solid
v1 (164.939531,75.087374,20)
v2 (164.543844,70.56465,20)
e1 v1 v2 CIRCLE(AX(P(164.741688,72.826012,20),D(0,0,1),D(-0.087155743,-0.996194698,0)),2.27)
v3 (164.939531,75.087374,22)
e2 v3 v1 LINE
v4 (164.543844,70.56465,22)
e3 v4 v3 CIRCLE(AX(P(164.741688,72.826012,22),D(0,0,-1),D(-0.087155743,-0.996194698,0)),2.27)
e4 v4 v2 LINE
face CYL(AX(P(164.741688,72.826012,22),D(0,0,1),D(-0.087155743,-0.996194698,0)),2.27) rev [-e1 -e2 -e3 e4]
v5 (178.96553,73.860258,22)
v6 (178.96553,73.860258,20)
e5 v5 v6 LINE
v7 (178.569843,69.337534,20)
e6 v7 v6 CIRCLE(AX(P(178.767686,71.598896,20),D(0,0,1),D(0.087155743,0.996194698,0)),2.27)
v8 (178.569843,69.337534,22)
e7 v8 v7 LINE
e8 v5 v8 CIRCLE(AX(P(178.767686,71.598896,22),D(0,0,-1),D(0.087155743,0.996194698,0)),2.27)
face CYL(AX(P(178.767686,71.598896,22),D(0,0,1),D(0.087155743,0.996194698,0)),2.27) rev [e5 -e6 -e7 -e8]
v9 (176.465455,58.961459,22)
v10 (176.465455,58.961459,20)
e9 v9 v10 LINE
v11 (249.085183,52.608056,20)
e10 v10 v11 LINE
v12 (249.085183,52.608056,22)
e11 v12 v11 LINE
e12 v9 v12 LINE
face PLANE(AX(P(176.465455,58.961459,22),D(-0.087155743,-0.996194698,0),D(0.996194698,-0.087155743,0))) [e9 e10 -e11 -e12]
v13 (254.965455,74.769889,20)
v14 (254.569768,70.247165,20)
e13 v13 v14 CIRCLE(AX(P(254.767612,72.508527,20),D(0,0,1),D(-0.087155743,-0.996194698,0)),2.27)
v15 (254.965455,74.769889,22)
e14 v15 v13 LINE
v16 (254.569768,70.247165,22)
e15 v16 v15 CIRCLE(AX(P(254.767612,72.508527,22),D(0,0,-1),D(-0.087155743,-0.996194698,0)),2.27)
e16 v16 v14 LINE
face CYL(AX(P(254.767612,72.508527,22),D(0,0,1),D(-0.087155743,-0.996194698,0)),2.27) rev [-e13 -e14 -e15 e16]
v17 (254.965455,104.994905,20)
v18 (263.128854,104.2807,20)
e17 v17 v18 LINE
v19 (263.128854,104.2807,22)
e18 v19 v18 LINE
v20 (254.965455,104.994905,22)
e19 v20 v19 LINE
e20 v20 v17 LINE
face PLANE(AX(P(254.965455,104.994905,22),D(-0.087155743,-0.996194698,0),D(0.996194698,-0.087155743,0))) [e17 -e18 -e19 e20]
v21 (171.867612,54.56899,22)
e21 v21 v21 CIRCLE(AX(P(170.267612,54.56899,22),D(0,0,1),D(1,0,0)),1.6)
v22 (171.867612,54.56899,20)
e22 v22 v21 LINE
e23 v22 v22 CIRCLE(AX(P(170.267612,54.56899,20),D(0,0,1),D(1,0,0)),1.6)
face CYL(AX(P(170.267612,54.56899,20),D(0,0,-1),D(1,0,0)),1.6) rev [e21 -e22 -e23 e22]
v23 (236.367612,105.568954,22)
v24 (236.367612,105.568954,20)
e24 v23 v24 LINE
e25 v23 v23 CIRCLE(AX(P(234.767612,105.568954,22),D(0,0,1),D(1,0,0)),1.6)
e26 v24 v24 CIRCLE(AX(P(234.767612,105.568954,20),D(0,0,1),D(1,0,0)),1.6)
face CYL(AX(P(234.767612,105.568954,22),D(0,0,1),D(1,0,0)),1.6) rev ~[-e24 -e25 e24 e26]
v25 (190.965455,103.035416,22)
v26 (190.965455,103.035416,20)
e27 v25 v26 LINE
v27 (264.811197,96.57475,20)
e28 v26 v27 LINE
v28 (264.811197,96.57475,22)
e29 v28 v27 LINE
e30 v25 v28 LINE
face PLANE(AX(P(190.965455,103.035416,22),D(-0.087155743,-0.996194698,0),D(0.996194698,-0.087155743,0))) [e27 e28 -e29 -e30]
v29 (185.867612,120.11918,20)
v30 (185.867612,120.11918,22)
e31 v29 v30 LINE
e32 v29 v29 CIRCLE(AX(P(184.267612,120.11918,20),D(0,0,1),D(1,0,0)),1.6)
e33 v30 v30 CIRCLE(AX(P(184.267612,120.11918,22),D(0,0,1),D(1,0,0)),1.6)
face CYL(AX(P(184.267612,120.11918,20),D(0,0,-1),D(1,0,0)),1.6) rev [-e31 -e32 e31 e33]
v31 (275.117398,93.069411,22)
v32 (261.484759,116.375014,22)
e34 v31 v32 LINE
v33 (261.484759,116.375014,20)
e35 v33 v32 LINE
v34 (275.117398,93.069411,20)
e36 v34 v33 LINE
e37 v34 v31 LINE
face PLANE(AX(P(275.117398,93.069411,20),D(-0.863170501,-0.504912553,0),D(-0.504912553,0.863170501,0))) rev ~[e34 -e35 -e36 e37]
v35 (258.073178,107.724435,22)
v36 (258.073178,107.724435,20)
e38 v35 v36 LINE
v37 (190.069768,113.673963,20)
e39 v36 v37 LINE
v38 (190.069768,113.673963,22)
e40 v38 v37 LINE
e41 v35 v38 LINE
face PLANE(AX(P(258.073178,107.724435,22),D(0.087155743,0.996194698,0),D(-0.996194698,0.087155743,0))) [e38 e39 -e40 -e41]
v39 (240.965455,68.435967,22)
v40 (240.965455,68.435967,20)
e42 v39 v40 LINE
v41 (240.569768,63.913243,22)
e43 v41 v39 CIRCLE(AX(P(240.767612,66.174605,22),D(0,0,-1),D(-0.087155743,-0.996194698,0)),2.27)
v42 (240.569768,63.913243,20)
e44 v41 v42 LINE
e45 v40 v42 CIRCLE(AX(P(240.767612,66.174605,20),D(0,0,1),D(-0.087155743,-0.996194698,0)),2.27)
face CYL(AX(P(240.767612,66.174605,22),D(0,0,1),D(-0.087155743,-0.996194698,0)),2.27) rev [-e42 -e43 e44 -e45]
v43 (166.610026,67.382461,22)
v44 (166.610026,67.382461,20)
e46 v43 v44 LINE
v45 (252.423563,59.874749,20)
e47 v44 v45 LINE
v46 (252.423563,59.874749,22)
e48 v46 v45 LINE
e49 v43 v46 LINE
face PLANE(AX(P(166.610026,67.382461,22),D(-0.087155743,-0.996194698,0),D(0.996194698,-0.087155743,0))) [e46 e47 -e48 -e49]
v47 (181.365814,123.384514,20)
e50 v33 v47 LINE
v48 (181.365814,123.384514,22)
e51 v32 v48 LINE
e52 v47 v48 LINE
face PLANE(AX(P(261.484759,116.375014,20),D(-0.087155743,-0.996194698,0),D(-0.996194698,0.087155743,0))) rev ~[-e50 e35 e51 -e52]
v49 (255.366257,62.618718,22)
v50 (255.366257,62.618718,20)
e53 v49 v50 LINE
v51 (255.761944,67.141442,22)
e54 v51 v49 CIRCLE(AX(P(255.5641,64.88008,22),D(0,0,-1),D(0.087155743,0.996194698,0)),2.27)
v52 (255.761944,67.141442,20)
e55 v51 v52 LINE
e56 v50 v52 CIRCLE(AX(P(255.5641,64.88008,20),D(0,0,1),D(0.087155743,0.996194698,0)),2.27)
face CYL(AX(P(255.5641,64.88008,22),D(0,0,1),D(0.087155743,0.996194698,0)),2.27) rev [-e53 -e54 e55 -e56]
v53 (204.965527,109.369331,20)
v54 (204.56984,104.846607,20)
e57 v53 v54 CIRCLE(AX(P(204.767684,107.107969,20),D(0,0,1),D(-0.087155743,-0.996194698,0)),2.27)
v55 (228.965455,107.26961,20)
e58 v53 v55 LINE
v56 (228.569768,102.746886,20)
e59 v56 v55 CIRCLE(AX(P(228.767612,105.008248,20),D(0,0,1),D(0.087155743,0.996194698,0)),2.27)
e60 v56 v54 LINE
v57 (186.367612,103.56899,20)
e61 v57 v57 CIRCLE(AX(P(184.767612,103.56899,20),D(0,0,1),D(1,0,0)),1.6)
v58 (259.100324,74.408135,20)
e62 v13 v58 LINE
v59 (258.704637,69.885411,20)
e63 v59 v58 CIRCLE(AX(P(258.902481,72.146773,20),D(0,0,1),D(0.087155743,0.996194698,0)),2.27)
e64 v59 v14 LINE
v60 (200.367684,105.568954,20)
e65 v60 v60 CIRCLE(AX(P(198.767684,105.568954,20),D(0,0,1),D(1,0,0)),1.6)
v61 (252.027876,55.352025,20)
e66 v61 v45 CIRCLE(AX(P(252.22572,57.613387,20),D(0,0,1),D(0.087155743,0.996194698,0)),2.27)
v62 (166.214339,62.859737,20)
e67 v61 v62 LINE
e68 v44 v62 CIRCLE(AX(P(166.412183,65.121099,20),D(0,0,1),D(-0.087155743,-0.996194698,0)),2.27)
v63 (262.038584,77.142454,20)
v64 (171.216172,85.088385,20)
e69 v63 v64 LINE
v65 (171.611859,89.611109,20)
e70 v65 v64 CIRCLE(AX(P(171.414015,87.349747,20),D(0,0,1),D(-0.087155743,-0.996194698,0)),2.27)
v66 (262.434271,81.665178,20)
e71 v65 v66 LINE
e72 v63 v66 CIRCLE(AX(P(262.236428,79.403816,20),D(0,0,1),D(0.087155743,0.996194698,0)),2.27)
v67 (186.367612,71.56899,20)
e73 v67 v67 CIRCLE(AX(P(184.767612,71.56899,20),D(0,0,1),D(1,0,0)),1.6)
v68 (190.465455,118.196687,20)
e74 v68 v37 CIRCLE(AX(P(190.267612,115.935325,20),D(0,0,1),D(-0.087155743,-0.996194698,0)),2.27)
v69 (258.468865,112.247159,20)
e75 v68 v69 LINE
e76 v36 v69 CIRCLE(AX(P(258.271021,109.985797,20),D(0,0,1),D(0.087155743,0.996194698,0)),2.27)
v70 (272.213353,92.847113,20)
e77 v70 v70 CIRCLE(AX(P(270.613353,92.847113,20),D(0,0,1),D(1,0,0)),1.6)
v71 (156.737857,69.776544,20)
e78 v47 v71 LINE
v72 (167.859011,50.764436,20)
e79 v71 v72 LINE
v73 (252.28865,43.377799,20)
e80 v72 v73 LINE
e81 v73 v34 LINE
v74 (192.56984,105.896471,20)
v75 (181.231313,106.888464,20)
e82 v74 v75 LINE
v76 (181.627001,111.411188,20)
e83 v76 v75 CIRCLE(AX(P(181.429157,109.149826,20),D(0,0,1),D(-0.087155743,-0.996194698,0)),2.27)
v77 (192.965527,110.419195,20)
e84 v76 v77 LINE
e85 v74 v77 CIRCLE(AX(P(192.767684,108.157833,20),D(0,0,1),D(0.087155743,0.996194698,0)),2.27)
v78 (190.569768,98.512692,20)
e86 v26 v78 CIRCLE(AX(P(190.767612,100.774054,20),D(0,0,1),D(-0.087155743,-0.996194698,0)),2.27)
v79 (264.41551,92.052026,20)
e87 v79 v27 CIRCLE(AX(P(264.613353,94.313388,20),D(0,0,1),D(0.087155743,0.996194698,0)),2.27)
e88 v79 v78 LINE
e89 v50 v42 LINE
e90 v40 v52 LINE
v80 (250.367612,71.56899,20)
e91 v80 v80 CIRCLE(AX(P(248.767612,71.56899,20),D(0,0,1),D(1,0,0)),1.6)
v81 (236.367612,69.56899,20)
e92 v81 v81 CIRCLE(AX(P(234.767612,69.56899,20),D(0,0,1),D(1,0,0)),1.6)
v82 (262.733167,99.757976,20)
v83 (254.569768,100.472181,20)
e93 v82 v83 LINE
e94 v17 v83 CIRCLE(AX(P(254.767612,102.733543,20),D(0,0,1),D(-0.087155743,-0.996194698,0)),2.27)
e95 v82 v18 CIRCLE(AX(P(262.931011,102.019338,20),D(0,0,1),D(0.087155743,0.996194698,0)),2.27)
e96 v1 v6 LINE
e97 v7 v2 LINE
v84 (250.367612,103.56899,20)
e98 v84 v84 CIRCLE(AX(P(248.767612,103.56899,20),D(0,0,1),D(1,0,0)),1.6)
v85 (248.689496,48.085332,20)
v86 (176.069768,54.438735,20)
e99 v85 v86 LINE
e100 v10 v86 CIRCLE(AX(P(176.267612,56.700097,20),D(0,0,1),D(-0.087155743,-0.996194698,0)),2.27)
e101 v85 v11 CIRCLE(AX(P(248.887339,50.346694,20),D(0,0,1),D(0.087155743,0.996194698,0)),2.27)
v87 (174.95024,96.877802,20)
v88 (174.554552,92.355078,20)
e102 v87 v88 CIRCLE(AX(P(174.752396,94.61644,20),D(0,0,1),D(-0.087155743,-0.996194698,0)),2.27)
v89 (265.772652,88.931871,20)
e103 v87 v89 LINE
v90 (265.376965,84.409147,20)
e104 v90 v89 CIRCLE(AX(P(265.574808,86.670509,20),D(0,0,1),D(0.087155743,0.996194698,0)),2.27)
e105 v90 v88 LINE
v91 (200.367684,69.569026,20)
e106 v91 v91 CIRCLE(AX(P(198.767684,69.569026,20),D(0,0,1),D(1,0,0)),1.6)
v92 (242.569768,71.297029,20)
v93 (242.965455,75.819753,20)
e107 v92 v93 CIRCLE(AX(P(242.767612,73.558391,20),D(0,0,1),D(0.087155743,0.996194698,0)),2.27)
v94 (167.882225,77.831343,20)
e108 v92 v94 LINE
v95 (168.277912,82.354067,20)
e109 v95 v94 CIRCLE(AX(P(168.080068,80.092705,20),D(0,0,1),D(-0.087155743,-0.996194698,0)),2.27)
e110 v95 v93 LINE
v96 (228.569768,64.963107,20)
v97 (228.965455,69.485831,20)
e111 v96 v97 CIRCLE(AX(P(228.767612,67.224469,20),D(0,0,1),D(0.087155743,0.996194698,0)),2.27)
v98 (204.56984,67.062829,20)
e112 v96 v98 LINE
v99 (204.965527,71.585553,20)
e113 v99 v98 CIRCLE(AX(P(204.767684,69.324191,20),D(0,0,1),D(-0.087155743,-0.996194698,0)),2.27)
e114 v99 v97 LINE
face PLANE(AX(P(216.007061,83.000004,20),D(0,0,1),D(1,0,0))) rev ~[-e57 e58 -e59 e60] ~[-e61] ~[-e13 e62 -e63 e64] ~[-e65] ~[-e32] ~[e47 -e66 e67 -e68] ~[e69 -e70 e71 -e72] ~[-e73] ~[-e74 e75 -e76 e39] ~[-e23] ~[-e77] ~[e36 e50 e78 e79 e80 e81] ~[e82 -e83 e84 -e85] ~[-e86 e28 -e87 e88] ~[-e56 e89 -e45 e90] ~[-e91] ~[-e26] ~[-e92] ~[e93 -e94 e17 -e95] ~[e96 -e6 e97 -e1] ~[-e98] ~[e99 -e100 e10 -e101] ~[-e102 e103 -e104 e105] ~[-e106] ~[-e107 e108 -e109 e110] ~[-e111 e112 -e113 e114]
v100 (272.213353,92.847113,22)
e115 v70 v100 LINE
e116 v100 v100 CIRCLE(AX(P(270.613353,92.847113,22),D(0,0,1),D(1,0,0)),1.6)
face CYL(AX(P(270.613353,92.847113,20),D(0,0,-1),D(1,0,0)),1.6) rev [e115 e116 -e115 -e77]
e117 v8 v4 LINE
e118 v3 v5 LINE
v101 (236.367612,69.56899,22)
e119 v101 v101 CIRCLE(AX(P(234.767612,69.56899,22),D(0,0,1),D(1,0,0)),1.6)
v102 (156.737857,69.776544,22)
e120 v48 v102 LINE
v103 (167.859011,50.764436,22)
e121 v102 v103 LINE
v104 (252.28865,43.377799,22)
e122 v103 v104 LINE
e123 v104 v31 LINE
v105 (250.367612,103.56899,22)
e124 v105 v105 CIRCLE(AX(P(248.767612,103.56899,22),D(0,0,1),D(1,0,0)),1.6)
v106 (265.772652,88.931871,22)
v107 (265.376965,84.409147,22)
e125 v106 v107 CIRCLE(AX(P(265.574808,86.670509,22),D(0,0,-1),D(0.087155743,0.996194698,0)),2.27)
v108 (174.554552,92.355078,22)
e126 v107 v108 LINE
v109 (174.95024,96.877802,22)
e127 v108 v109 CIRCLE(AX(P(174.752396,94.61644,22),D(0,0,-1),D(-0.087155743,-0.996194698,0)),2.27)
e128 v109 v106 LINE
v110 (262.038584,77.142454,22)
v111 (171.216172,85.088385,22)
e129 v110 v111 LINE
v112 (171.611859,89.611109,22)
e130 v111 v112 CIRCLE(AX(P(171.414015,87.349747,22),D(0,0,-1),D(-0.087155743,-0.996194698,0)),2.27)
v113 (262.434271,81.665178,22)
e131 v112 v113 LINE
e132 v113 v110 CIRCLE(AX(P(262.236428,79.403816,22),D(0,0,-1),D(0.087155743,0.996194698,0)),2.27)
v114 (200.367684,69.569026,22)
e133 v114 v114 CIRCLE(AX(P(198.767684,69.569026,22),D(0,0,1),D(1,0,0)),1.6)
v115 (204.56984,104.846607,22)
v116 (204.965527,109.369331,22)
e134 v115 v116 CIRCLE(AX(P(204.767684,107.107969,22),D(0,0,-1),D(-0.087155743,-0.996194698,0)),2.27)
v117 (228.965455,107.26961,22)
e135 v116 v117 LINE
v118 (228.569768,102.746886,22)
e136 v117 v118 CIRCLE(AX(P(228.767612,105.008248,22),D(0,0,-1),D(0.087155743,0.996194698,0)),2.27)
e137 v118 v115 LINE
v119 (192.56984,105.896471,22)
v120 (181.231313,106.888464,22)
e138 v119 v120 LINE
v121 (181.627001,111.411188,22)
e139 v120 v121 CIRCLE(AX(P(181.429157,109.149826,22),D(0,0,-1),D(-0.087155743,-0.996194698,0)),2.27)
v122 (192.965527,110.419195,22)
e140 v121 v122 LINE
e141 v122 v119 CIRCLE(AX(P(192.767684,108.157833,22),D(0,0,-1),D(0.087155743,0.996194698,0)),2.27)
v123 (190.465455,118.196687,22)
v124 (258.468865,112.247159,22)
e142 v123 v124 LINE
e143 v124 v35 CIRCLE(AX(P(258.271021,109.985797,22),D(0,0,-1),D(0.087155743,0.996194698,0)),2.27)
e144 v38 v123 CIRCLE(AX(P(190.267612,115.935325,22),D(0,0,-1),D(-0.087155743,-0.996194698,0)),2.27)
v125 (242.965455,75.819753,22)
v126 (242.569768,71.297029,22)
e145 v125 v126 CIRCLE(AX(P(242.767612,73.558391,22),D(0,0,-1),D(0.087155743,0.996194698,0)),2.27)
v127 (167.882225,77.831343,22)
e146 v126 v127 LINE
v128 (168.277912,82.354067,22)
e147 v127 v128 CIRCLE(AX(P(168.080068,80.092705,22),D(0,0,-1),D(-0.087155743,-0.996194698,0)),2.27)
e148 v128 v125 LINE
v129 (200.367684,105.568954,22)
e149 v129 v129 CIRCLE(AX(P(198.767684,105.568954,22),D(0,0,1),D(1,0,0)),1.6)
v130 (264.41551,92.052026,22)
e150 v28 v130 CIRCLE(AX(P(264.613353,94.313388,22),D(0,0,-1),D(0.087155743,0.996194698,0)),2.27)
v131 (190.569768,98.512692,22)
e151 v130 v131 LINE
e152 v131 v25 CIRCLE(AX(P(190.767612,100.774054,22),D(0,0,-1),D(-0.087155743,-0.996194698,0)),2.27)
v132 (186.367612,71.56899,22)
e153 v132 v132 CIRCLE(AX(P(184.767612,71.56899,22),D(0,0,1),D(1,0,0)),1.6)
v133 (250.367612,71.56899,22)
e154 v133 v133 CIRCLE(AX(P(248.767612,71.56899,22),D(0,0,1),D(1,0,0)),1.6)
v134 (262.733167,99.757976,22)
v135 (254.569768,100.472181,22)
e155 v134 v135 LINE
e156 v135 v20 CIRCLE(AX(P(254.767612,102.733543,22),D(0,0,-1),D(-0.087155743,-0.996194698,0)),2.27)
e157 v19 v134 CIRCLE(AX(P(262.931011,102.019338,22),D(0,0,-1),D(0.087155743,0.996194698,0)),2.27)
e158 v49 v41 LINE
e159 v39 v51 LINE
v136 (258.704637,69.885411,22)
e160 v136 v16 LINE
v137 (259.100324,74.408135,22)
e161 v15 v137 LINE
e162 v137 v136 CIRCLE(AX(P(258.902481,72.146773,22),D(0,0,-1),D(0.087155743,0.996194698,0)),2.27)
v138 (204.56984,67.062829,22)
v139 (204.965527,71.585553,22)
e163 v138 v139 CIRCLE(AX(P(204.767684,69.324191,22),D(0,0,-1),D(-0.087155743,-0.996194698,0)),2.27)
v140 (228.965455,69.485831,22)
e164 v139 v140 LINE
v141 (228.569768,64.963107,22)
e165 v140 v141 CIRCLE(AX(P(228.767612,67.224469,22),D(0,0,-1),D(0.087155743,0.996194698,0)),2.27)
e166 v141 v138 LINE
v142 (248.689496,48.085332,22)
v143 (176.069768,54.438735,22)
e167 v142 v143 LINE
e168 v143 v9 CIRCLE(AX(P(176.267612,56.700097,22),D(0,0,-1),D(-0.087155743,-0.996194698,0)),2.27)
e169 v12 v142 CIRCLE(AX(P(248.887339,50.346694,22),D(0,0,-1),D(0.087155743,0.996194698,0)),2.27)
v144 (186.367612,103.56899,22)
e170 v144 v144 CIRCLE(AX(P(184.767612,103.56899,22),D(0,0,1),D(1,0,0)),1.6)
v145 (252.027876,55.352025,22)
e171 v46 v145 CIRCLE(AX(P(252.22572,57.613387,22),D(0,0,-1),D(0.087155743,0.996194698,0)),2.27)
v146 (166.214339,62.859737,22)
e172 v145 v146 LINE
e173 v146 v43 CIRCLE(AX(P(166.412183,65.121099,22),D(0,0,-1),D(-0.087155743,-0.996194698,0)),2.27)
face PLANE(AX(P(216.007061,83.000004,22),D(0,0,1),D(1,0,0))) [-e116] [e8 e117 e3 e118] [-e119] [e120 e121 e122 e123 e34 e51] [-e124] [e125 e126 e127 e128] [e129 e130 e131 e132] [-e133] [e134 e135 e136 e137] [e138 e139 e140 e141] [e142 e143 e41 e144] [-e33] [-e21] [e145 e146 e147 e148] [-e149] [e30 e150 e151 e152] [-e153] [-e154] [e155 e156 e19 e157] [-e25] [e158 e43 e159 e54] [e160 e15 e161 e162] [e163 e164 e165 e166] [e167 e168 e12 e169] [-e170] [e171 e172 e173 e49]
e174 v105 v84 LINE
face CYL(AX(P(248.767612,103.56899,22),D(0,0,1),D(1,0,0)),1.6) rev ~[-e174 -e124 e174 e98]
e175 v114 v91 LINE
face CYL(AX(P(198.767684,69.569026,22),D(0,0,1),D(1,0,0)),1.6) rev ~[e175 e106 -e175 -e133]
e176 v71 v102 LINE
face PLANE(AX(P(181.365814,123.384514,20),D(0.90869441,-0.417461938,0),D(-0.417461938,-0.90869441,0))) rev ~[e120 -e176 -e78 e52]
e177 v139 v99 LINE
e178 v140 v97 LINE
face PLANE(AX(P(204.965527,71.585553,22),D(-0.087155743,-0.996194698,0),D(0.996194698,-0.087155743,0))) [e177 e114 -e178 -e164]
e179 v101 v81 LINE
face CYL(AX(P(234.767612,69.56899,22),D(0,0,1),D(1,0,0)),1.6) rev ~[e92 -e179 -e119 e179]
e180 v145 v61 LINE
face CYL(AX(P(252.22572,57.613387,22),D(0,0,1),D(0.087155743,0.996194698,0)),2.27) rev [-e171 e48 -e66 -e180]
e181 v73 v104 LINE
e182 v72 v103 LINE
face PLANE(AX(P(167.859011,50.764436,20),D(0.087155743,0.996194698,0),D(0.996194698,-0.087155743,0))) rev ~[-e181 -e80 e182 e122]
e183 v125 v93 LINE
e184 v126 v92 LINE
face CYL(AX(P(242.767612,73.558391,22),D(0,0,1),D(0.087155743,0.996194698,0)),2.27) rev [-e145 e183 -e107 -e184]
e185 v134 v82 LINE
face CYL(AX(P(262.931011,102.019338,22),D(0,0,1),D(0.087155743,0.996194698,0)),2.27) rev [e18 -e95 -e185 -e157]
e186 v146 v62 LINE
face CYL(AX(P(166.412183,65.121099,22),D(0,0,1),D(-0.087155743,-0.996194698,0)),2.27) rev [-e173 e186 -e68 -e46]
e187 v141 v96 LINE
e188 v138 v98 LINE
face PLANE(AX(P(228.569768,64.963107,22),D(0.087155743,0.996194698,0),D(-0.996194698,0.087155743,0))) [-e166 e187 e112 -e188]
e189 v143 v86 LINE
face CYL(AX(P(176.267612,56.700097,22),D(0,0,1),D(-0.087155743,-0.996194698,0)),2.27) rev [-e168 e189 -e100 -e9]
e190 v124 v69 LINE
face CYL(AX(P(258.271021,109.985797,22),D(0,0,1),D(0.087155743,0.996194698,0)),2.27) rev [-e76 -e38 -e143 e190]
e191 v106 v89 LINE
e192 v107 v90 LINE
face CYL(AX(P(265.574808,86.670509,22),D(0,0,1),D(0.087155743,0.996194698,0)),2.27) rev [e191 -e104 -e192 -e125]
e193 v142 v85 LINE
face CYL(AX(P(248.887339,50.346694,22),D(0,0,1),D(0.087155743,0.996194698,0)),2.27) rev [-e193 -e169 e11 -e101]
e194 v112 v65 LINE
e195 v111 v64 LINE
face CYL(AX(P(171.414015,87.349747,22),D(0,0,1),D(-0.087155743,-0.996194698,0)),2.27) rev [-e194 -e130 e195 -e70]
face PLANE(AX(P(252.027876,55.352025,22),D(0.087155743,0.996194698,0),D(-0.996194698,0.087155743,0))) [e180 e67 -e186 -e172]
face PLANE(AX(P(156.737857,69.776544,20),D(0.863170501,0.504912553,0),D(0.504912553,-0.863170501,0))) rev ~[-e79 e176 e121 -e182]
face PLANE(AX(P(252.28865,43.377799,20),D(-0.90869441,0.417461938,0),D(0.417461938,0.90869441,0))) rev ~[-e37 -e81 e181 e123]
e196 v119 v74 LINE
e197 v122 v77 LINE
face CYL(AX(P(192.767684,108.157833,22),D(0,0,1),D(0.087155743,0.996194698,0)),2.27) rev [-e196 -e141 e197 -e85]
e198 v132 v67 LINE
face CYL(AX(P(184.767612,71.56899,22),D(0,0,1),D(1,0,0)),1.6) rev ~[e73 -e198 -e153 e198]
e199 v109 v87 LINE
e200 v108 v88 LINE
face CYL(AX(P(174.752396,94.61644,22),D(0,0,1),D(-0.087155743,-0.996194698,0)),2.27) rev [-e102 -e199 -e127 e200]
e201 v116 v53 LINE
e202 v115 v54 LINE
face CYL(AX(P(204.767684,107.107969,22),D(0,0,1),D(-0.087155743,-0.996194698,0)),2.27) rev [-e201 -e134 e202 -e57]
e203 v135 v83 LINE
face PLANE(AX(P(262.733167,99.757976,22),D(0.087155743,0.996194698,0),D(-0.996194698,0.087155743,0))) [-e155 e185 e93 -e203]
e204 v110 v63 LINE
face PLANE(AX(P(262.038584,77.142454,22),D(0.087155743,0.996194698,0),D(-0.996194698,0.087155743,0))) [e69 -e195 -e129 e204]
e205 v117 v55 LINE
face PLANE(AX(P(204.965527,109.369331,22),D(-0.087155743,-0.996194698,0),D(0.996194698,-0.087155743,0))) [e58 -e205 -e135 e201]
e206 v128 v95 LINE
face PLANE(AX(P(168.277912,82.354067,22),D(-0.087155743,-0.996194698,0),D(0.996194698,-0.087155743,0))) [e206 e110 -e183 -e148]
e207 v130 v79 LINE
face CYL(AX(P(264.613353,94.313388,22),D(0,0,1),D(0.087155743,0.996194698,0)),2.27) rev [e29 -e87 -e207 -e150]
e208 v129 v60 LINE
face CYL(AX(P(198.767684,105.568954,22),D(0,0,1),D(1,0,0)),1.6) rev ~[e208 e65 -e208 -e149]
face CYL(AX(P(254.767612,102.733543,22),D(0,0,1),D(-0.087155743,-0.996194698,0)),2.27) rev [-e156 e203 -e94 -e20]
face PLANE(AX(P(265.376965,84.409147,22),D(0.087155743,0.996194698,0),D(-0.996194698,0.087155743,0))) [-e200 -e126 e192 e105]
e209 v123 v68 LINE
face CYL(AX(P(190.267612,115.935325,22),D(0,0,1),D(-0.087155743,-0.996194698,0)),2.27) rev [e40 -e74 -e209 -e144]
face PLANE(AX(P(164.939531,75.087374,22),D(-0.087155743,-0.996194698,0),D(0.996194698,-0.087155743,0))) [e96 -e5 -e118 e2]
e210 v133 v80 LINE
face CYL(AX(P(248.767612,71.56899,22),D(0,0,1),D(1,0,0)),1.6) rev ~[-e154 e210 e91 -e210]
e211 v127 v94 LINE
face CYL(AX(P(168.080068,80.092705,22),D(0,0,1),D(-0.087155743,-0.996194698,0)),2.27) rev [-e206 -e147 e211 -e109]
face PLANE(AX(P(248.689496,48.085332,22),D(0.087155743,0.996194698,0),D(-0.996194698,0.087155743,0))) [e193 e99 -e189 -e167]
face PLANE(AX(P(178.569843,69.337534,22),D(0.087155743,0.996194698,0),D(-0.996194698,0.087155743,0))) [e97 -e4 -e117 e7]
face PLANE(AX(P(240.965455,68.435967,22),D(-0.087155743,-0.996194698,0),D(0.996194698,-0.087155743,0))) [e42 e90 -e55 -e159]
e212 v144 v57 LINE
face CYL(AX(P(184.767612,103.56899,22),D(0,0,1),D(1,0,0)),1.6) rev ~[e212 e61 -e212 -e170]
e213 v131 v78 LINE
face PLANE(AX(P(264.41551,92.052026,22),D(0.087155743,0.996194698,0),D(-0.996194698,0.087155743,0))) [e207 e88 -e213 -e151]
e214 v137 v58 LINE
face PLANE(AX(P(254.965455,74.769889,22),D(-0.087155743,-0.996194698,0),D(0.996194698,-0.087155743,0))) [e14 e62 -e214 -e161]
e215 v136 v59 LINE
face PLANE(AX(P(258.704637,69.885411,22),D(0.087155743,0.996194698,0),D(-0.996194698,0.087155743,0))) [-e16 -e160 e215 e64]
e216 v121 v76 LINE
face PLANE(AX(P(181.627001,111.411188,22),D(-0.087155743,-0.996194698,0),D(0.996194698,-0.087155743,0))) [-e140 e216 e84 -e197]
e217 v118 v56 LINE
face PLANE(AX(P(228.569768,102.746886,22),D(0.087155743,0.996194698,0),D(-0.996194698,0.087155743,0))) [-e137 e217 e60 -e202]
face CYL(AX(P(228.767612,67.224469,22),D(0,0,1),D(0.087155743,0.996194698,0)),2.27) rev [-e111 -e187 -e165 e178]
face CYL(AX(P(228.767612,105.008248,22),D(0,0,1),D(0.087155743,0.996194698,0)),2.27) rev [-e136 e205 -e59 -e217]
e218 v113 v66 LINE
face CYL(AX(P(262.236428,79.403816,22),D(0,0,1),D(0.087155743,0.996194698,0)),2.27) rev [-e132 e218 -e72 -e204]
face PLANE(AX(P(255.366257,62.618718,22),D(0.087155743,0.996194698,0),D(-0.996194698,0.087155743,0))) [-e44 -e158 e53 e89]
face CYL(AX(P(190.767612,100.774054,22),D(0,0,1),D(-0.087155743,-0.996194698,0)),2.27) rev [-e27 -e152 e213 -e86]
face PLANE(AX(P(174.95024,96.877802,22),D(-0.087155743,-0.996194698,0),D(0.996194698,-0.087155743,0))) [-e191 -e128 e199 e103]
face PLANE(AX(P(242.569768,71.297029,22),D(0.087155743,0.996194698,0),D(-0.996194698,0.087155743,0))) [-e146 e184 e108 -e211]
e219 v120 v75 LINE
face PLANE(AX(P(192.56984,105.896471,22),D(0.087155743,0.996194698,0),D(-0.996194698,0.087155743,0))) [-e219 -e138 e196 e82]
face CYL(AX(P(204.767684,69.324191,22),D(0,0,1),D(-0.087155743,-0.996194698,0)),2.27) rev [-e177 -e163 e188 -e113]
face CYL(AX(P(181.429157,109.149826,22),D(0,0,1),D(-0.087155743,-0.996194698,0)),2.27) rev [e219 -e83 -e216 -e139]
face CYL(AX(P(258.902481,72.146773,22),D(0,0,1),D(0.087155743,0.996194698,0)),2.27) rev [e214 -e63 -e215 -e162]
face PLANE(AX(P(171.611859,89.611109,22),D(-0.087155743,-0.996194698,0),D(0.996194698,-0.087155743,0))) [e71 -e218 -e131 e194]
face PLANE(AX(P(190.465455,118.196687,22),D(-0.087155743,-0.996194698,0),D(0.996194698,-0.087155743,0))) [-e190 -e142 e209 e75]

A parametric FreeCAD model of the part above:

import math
import FreeCAD as App
import Part
import Sketcher
from FreeCAD import Vector
Q = App.Units.Quantity

doc = App.newDocument("Part")
body = doc.addObject("PartDesign::Body", "Body")

# Sketch on XY plane
sketch1 = doc.addObject("Sketcher::SketchObject", "Sketch")
body.addObject(sketch1)
sketch1.AttachmentSupport = (doc.XY_Plane, [""])
sketch1.MapMode = "FlatFace"
sketch1.AttachmentOffset = App.Placement(Vector(0, 0, 20), App.Rotation())
sketch1.addGeometry(Part.LineSegment(Vector(252.3, 43.4, 0), Vector(275.1, 93.1, 0)), False)
sketch1.addGeometry(Part.LineSegment(Vector(275.1, 93.1, 0), Vector(261.5, 116.4, 0)), False)
sketch1.addGeometry(Part.LineSegment(Vector(261.5, 116.4, 0), Vector(181.4, 123.4, 0)), False)
sketch1.addGeometry(Part.LineSegment(Vector(181.4, 123.4, 0), Vector(156.7, 69.8, 0)), False)
sketch1.addGeometry(Part.LineSegment(Vector(156.7, 69.8, 0), Vector(167.9, 50.8, 0)), False)
sketch1.addGeometry(Part.LineSegment(Vector(167.9, 50.8, 0), Vector(252.3, 43.4, 0)), False)
sketch1.addGeometry(Part.Circle(Vector(170.3, 54.6, 0), Vector(0, 0, 1), 1.6), False)
sketch1.addGeometry(Part.Circle(Vector(184.3, 120.1, 0), Vector(0, 0, 1), 1.6), False)
sketch1.addGeometry(Part.Circle(Vector(270.6, 92.8, 0), Vector(0, 0, 1), 1.6), False)
sketch1.addConstraint(Sketcher.Constraint("Coincident", 0, 2, 1, 1))
sketch1.addConstraint(Sketcher.Constraint("Coincident", 1, 2, 2, 1))
sketch1.addConstraint(Sketcher.Constraint("Coincident", 2, 2, 3, 1))
sketch1.addConstraint(Sketcher.Constraint("Coincident", 3, 2, 4, 1))
sketch1.addConstraint(Sketcher.Constraint("Coincident", 4, 2, 5, 1))
sketch1.addConstraint(Sketcher.Constraint("Coincident", 5, 2, 0, 1))
sketch1.addConstraint(Sketcher.Constraint("Equal", 6, 7))
sketch1.addConstraint(Sketcher.Constraint("Equal", 7, 8))
sketch1.addConstraint(Sketcher.Constraint("Parallel", 0, 3))
sketch1.addConstraint(Sketcher.Constraint("Parallel", 1, 4))
sketch1.addConstraint(Sketcher.Constraint("Parallel", 2, 5))
sketch1.addConstraint(Sketcher.Constraint("Diameter", 6, 3.2))
sketch1.addConstraint(Sketcher.Constraint("Angle", 2, Q("175 deg")))
sketch1.addConstraint(Sketcher.Constraint("Distance", 1, 27.0))
sketch1.addConstraint(Sketcher.Constraint("DistanceX", 6, 3, 7, 3, 14.0))
sketch1.addConstraint(Sketcher.Constraint("Distance", 4, 22.025902))
sketch1.addConstraint(Sketcher.Constraint("DistanceX", -1, 1, 0, 2, 275.117398))
sketch1.addConstraint(Sketcher.Constraint("DistanceY", -1, 1, 5, 2, 43.377799))
sketch1.addConstraint(Sketcher.Constraint("DistanceY", 8, 3, 1, 2, 23.527901))
sketch1.addConstraint(Sketcher.Constraint("DistanceY", 1, 2, 2, 2, 7.009499))
sketch1.addConstraint(Sketcher.Constraint("DistanceX", 4, 2, 6, 3, 2.4086))
sketch1.addConstraint(Sketcher.Constraint("DistanceX", -1, 1, 6, 3, 170.267612))
sketch1.addConstraint(Sketcher.Constraint("DistanceY", -1, 1, 6, 3, 54.56899))
sketch1.addConstraint(Sketcher.Constraint("DistanceY", -1, 1, 7, 3, 120.11918))
sketch1.addConstraint(Sketcher.Constraint("DistanceY", -1, 1, 0, 2, 93.069411))
sketch1.addConstraint(Sketcher.Constraint("DistanceX", -1, 1, 1, 2, 261.484759))
sketch1.addConstraint(Sketcher.Constraint("DistanceX", 7, 3, 8, 3, 86.345741))
pad1 = doc.addObject("PartDesign::Pad", "Pad")
body.addObject(pad1)
pad1.Profile = sketch1
pad1.Length = 2

# Sketch on XY plane
sketch2 = doc.addObject("Sketcher::SketchObject", "Sketch001")
body.addObject(sketch2)
sketch2.AttachmentSupport = (doc.XY_Plane, [""])
sketch2.MapMode = "FlatFace"
sketch2.AttachmentOffset = App.Placement(Vector(0, 0, 22), App.Rotation())
sketch2.addGeometry(Part.Circle(Vector(184.8, 103.6, 0), Vector(0, 0, 1), 1.6), False)
sketch2.addGeometry(Part.Circle(Vector(248.8, 103.6, 0), Vector(0, 0, 1), 1.6), False)
sketch2.addGeometry(Part.Circle(Vector(184.8, 71.6, 0), Vector(0, 0, 1), 1.6), False)
sketch2.addGeometry(Part.Circle(Vector(248.8, 71.6, 0), Vector(0, 0, 1), 1.6), False)
sketch2.addConstraint(Sketcher.Constraint("Equal", 0, 1))
sketch2.addConstraint(Sketcher.Constraint("Equal", 1, 2))
sketch2.addConstraint(Sketcher.Constraint("Equal", 2, 3))
sketch2.addConstraint(Sketcher.Constraint("Horizontal", 0, 3, 1, 3))
sketch2.addConstraint(Sketcher.Constraint("Horizontal", 2, 3, 3, 3))
sketch2.addConstraint(Sketcher.Constraint("Vertical", 0, 3, 2, 3))
sketch2.addConstraint(Sketcher.Constraint("Vertical", 1, 3, 3, 3))
sketch2.addConstraint(Sketcher.Constraint("Diameter", 0, 3.2))
sketch2.addConstraint(Sketcher.Constraint("DistanceX", 0, 3, 1, 3, 64.0))
sketch2.addConstraint(Sketcher.Constraint("DistanceY", 2, 3, 0, 3, 32.0))
sketch2.addConstraint(Sketcher.Constraint("DistanceX", -1, 1, 0, 3, 184.767612))
sketch2.addConstraint(Sketcher.Constraint("DistanceY", -1, 1, 0, 3, 103.56899))
pocket1 = doc.addObject("PartDesign::Pocket", "Pocket")
body.addObject(pocket1)
pocket1.Profile = sketch2
pocket1.Length = 10

# Sketch on XY plane
sketch3 = doc.addObject("Sketcher::SketchObject", "Sketch002")
body.addObject(sketch3)
sketch3.AttachmentSupport = (doc.XY_Plane, [""])
sketch3.MapMode = "FlatFace"
sketch3.AttachmentOffset = App.Placement(Vector(0, 0, 22), App.Rotation())
sketch3.addGeometry(Part.Circle(Vector(198.8, 105.6, 0), Vector(0, 0, 1), 1.6), False)
sketch3.addGeometry(Part.Circle(Vector(234.8, 105.6, 0), Vector(0, 0, 1), 1.6), False)
sketch3.addGeometry(Part.Circle(Vector(198.8, 69.6, 0), Vector(0, 0, 1), 1.6), False)
sketch3.addGeometry(Part.Circle(Vector(234.8, 69.6, 0), Vector(0, 0, 1), 1.6), False)
sketch3.addConstraint(Sketcher.Constraint("Equal", 0, 1))
sketch3.addConstraint(Sketcher.Constraint("Equal", 1, 2))
sketch3.addConstraint(Sketcher.Constraint("Equal", 2, 3))
sketch3.addConstraint(Sketcher.Constraint("Horizontal", 0, 3, 1, 3))
sketch3.addConstraint(Sketcher.Constraint("Vertical", 0, 3, 2, 3))
sketch3.addConstraint(Sketcher.Constraint("Vertical", 1, 3, 3, 3))
sketch3.addConstraint(Sketcher.Constraint("Diameter", 0, 3.2))
sketch3.addConstraint(Sketcher.Constraint("DistanceX", -1, 1, 1, 3, 234.767612))
sketch3.addConstraint(Sketcher.Constraint("DistanceY", -1, 1, 3, 3, 69.56899))
sketch3.addConstraint(Sketcher.Constraint("DistanceX", -1, 1, 0, 3, 198.767684))
sketch3.addConstraint(Sketcher.Constraint("DistanceY", -1, 1, 0, 3, 105.568954))
sketch3.addConstraint(Sketcher.Constraint("DistanceY", -1, 1, 2, 3, 69.569026))
pocket2 = doc.addObject("PartDesign::Pocket", "Pocket001")
body.addObject(pocket2)
pocket2.Profile = sketch3
pocket2.Length = 10

# Sketch on XY plane
sketch4 = doc.addObject("Sketcher::SketchObject", "Sketch003")
body.addObject(sketch4)
sketch4.AttachmentSupport = (doc.XY_Plane, [""])
sketch4.MapMode = "FlatFace"
sketch4.AttachmentOffset = App.Placement(Vector(0, 0, 22), App.Rotation())
sketch4.addGeometry(Part.LineSegment(Vector(258.5, 112.2, 0), Vector(190.5, 118.2, 0)), False)
sketch4.addGeometry(Part.ArcOfCircle(Part.Circle(Vector(190.3, 115.9, 0), Vector(0, 0, 1), 2.3), math.radians(85), math.radians(265)), False)
sketch4.addGeometry(Part.LineSegment(Vector(190.1, 113.7, 0), Vector(258.1, 107.7, 0)), False)
sketch4.addGeometry(Part.ArcOfCircle(Part.Circle(Vector(258.3, 110, 0), Vector(0, 0, 1), 2.3), math.radians(-95), math.radians(85)), False)
sketch4.addGeometry(Part.LineSegment(Vector(193, 110.4, 0), Vector(181.6, 111.4, 0)), False)
sketch4.addGeometry(Part.ArcOfCircle(Part.Circle(Vector(181.4, 109.1, 0), Vector(0, 0, 1), 2.3), math.radians(85), math.radians(265)), False)
sketch4.addGeometry(Part.LineSegment(Vector(181.2, 106.9, 0), Vector(192.6, 105.9, 0)), False)
sketch4.addGeometry(Part.ArcOfCircle(Part.Circle(Vector(192.8, 108.2, 0), Vector(0, 0, 1), 2.3), math.radians(-95), math.radians(85)), False)
sketch4.addGeometry(Part.LineSegment(Vector(229, 107.3, 0), Vector(205, 109.4, 0)), False)
sketch4.addGeometry(Part.ArcOfCircle(Part.Circle(Vector(204.8, 107.1, 0), Vector(0, 0, 1), 2.3), math.radians(85), math.radians(265)), False)
sketch4.addGeometry(Part.LineSegment(Vector(204.6, 104.8, 0), Vector(228.6, 102.7, 0)), False)
sketch4.addGeometry(Part.ArcOfCircle(Part.Circle(Vector(228.8, 105, 0), Vector(0, 0, 1), 2.3), math.radians(-95), math.radians(85)), False)
sketch4.addGeometry(Part.LineSegment(Vector(263.1, 104.3, 0), Vector(255, 105, 0)), False)
sketch4.addGeometry(Part.ArcOfCircle(Part.Circle(Vector(254.8, 102.7, 0), Vector(0, 0, 1), 2.3), math.radians(85), math.radians(265)), False)
sketch4.addGeometry(Part.LineSegment(Vector(254.6, 100.5, 0), Vector(262.7, 99.8, 0)), False)
sketch4.addGeometry(Part.ArcOfCircle(Part.Circle(Vector(262.9, 102, 0), Vector(0, 0, 1), 2.3), math.radians(-95), math.radians(85)), False)
sketch4.addGeometry(Part.LineSegment(Vector(264.8, 96.6, 0), Vector(191, 103, 0)), False)
sketch4.addGeometry(Part.ArcOfCircle(Part.Circle(Vector(190.8, 100.8, 0), Vector(0, 0, 1), 2.3), math.radians(85), math.radians(265)), False)
sketch4.addGeometry(Part.LineSegment(Vector(190.6, 98.5, 0), Vector(264.4, 92.1, 0)), False)
sketch4.addGeometry(Part.ArcOfCircle(Part.Circle(Vector(264.6, 94.3, 0), Vector(0, 0, 1), 2.3), math.radians(-95), math.radians(85)), False)
sketch4.addGeometry(Part.LineSegment(Vector(265.8, 88.9, 0), Vector(175, 96.9, 0)), False)
sketch4.addGeometry(Part.ArcOfCircle(Part.Circle(Vector(174.8, 94.6, 0), Vector(0, 0, 1), 2.3), math.radians(85), math.radians(265)), False)
sketch4.addGeometry(Part.LineSegment(Vector(174.6, 92.4, 0), Vector(265.4, 84.4, 0)), False)
sketch4.addGeometry(Part.ArcOfCircle(Part.Circle(Vector(265.6, 86.7, 0), Vector(0, 0, 1), 2.3), math.radians(-95), math.radians(85)), False)
sketch4.addGeometry(Part.LineSegment(Vector(262.4, 81.7, 0), Vector(171.6, 89.6, 0)), False)
sketch4.addGeometry(Part.ArcOfCircle(Part.Circle(Vector(171.4, 87.3, 0), Vector(0, 0, 1), 2.3), math.radians(85), math.radians(265)), False)
sketch4.addGeometry(Part.LineSegment(Vector(171.2, 85.1, 0), Vector(262, 77.1, 0)), False)
sketch4.addGeometry(Part.ArcOfCircle(Part.Circle(Vector(262.2, 79.4, 0), Vector(0, 0, 1), 2.3), math.radians(-95), math.radians(85)), False)
sketch4.addGeometry(Part.LineSegment(Vector(243, 75.8, 0), Vector(168.3, 82.4, 0)), False)
sketch4.addGeometry(Part.ArcOfCircle(Part.Circle(Vector(168.1, 80.1, 0), Vector(0, 0, 1), 2.3), math.radians(85), math.radians(265)), False)
sketch4.addGeometry(Part.LineSegment(Vector(167.9, 77.8, 0), Vector(242.6, 71.3, 0)), False)
sketch4.addGeometry(Part.ArcOfCircle(Part.Circle(Vector(242.8, 73.6, 0), Vector(0, 0, 1), 2.3), math.radians(-95), math.radians(85)), False)
sketch4.addGeometry(Part.LineSegment(Vector(259.1, 74.4, 0), Vector(255, 74.8, 0)), False)
sketch4.addGeometry(Part.ArcOfCircle(Part.Circle(Vector(254.8, 72.5, 0), Vector(0, 0, 1), 2.3), math.radians(85), math.radians(265)), False)
sketch4.addGeometry(Part.LineSegment(Vector(254.6, 70.2, 0), Vector(258.7, 69.9, 0)), False)
sketch4.addGeometry(Part.ArcOfCircle(Part.Circle(Vector(258.9, 72.1, 0), Vector(0, 0, 1), 2.3), math.radians(-95), math.radians(85)), False)
sketch4.addGeometry(Part.LineSegment(Vector(179, 73.9, 0), Vector(164.9, 75.1, 0)), False)
sketch4.addGeometry(Part.ArcOfCircle(Part.Circle(Vector(164.7, 72.8, 0), Vector(0, 0, 1), 2.3), math.radians(85), math.radians(265)), False)
sketch4.addGeometry(Part.LineSegment(Vector(164.5, 70.6, 0), Vector(178.6, 69.3, 0)), False)
sketch4.addGeometry(Part.ArcOfCircle(Part.Circle(Vector(178.8, 71.6, 0), Vector(0, 0, 1), 2.3), math.radians(-95), math.radians(85)), False)
sketch4.addGeometry(Part.LineSegment(Vector(229, 69.5, 0), Vector(205, 71.6, 0)), False)
sketch4.addGeometry(Part.ArcOfCircle(Part.Circle(Vector(204.8, 69.3, 0), Vector(0, 0, 1), 2.3), math.radians(85), math.radians(265)), False)
sketch4.addGeometry(Part.LineSegment(Vector(204.6, 67.1, 0), Vector(228.6, 65, 0)), False)
sketch4.addGeometry(Part.ArcOfCircle(Part.Circle(Vector(228.8, 67.2, 0), Vector(0, 0, 1), 2.3), math.radians(-95), math.radians(85)), False)
sketch4.addGeometry(Part.LineSegment(Vector(255.8, 67.1, 0), Vector(241, 68.4, 0)), False)
sketch4.addGeometry(Part.ArcOfCircle(Part.Circle(Vector(240.8, 66.2, 0), Vector(0, 0, 1), 2.3), math.radians(85), math.radians(265)), False)
sketch4.addGeometry(Part.LineSegment(Vector(240.6, 63.9, 0), Vector(255.4, 62.6, 0)), False)
sketch4.addGeometry(Part.ArcOfCircle(Part.Circle(Vector(255.6, 64.9, 0), Vector(0, 0, 1), 2.3), math.radians(-95), math.radians(85)), False)
sketch4.addGeometry(Part.LineSegment(Vector(252.4, 59.9, 0), Vector(166.6, 67.4, 0)), False)
sketch4.addGeometry(Part.ArcOfCircle(Part.Circle(Vector(166.4, 65.1, 0), Vector(0, 0, 1), 2.3), math.radians(85), math.radians(265)), False)
sketch4.addGeometry(Part.LineSegment(Vector(166.2, 62.9, 0), Vector(252, 55.4, 0)), False)
sketch4.addGeometry(Part.ArcOfCircle(Part.Circle(Vector(252.2, 57.6, 0), Vector(0, 0, 1), 2.3), math.radians(-95), math.radians(85)), False)
sketch4.addGeometry(Part.LineSegment(Vector(249.1, 52.6, 0), Vector(176.5, 59, 0)), False)
sketch4.addGeometry(Part.ArcOfCircle(Part.Circle(Vector(176.3, 56.7, 0), Vector(0, 0, 1), 2.3), math.radians(85), math.radians(265)), False)
sketch4.addGeometry(Part.LineSegment(Vector(176.1, 54.4, 0), Vector(248.7, 48.1, 0)), False)
sketch4.addGeometry(Part.ArcOfCircle(Part.Circle(Vector(248.9, 50.3, 0), Vector(0, 0, 1), 2.3), math.radians(-95), math.radians(85)), False)
sketch4.addConstraint(Sketcher.Constraint("Tangent", 0, 2, 1, 1))
sketch4.addConstraint(Sketcher.Constraint("Tangent", 1, 2, 2, 1))
sketch4.addConstraint(Sketcher.Constraint("Tangent", 2, 2, 3, 1))
sketch4.addConstraint(Sketcher.Constraint("Tangent", 3, 2, 0, 1))
sketch4.addConstraint(Sketcher.Constraint("Tangent", 4, 2, 5, 1))
sketch4.addConstraint(Sketcher.Constraint("Tangent", 5, 2, 6, 1))
sketch4.addConstraint(Sketcher.Constraint("Tangent", 6, 2, 7, 1))
sketch4.addConstraint(Sketcher.Constraint("Tangent", 7, 2, 4, 1))
sketch4.addConstraint(Sketcher.Constraint("Tangent", 8, 2, 9, 1))
sketch4.addConstraint(Sketcher.Constraint("Tangent", 9, 2, 10, 1))
sketch4.addConstraint(Sketcher.Constraint("Tangent", 10, 2, 11, 1))
sketch4.addConstraint(Sketcher.Constraint("Tangent", 11, 2, 8, 1))
sketch4.addConstraint(Sketcher.Constraint("Tangent", 12, 2, 13, 1))
sketch4.addConstraint(Sketcher.Constraint("Tangent", 13, 2, 14, 1))
sketch4.addConstraint(Sketcher.Constraint("Tangent", 14, 2, 15, 1))
sketch4.addConstraint(Sketcher.Constraint("Tangent", 15, 2, 12, 1))
sketch4.addConstraint(Sketcher.Constraint("Tangent", 16, 2, 17, 1))
sketch4.addConstraint(Sketcher.Constraint("Tangent", 17, 2, 18, 1))
sketch4.addConstraint(Sketcher.Constraint("Tangent", 18, 2, 19, 1))
sketch4.addConstraint(Sketcher.Constraint("Tangent", 19, 2, 16, 1))
sketch4.addConstraint(Sketcher.Constraint("Tangent", 20, 2, 21, 1))
sketch4.addConstraint(Sketcher.Constraint("Tangent", 21, 2, 22, 1))
sketch4.addConstraint(Sketcher.Constraint("Tangent", 22, 2, 23, 1))
sketch4.addConstraint(Sketcher.Constraint("Tangent", 23, 2, 20, 1))
sketch4.addConstraint(Sketcher.Constraint("Tangent", 24, 2, 25, 1))
sketch4.addConstraint(Sketcher.Constraint("Tangent", 25, 2, 26, 1))
sketch4.addConstraint(Sketcher.Constraint("Tangent", 26, 2, 27, 1))
sketch4.addConstraint(Sketcher.Constraint("Tangent", 27, 2, 24, 1))
sketch4.addConstraint(Sketcher.Constraint("Tangent", 28, 2, 29, 1))
sketch4.addConstraint(Sketcher.Constraint("Tangent", 29, 2, 30, 1))
sketch4.addConstraint(Sketcher.Constraint("Tangent", 30, 2, 31, 1))
sketch4.addConstraint(Sketcher.Constraint("Tangent", 31, 2, 28, 1))
sketch4.addConstraint(Sketcher.Constraint("Tangent", 32, 2, 33, 1))
sketch4.addConstraint(Sketcher.Constraint("Tangent", 33, 2, 34, 1))
sketch4.addConstraint(Sketcher.Constraint("Tangent", 34, 2, 35, 1))
sketch4.addConstraint(Sketcher.Constraint("Tangent", 35, 2, 32, 1))
sketch4.addConstraint(Sketcher.Constraint("Tangent", 36, 2, 37, 1))
sketch4.addConstraint(Sketcher.Constraint("Tangent", 37, 2, 38, 1))
sketch4.addConstraint(Sketcher.Constraint("Tangent", 38, 2, 39, 1))
sketch4.addConstraint(Sketcher.Constraint("Tangent", 39, 2, 36, 1))
sketch4.addConstraint(Sketcher.Constraint("Tangent", 40, 2, 41, 1))
sketch4.addConstraint(Sketcher.Constraint("Tangent", 41, 2, 42, 1))
sketch4.addConstraint(Sketcher.Constraint("Tangent", 42, 2, 43, 1))
sketch4.addConstraint(Sketcher.Constraint("Tangent", 43, 2, 40, 1))
sketch4.addConstraint(Sketcher.Constraint("Tangent", 44, 2, 45, 1))
sketch4.addConstraint(Sketcher.Constraint("Tangent", 45, 2, 46, 1))
sketch4.addConstraint(Sketcher.Constraint("Tangent", 46, 2, 47, 1))
sketch4.addConstraint(Sketcher.Constraint("Tangent", 47, 2, 44, 1))
sketch4.addConstraint(Sketcher.Constraint("Tangent", 48, 2, 49, 1))
sketch4.addConstraint(Sketcher.Constraint("Tangent", 49, 2, 50, 1))
sketch4.addConstraint(Sketcher.Constraint("Tangent", 50, 2, 51, 1))
sketch4.addConstraint(Sketcher.Constraint("Tangent", 51, 2, 48, 1))
sketch4.addConstraint(Sketcher.Constraint("Tangent", 52, 2, 53, 1))
sketch4.addConstraint(Sketcher.Constraint("Tangent", 53, 2, 54, 1))
sketch4.addConstraint(Sketcher.Constraint("Tangent", 54, 2, 55, 1))
sketch4.addConstraint(Sketcher.Constraint("Tangent", 55, 2, 52, 1))
sketch4.addConstraint(Sketcher.Constraint("Equal", 1, 3))
sketch4.addConstraint(Sketcher.Constraint("Equal", 3, 5))
sketch4.addConstraint(Sketcher.Constraint("Equal", 5, 7))
sketch4.addConstraint(Sketcher.Constraint("Equal", 7, 9))
sketch4.addConstraint(Sketcher.Constraint("Equal", 9, 11))
sketch4.addConstraint(Sketcher.Constraint("Equal", 11, 13))
sketch4.addConstraint(Sketcher.Constraint("Equal", 13, 15))
sketch4.addConstraint(Sketcher.Constraint("Equal", 15, 17))
sketch4.addConstraint(Sketcher.Constraint("Equal", 17, 19))
sketch4.addConstraint(Sketcher.Constraint("Equal", 19, 21))
sketch4.addConstraint(Sketcher.Constraint("Equal", 21, 23))
sketch4.addConstraint(Sketcher.Constraint("Equal", 23, 25))
sketch4.addConstraint(Sketcher.Constraint("Equal", 25, 27))
sketch4.addConstraint(Sketcher.Constraint("Equal", 27, 29))
sketch4.addConstraint(Sketcher.Constraint("Equal", 29, 31))
sketch4.addConstraint(Sketcher.Constraint("Equal", 31, 33))
sketch4.addConstraint(Sketcher.Constraint("Equal", 33, 35))
sketch4.addConstraint(Sketcher.Constraint("Equal", 35, 37))
sketch4.addConstraint(Sketcher.Constraint("Equal", 37, 39))
sketch4.addConstraint(Sketcher.Constraint("Equal", 39, 41))
sketch4.addConstraint(Sketcher.Constraint("Equal", 41, 43))
sketch4.addConstraint(Sketcher.Constraint("Equal", 43, 45))
sketch4.addConstraint(Sketcher.Constraint("Equal", 45, 47))
sketch4.addConstraint(Sketcher.Constraint("Equal", 47, 49))
sketch4.addConstraint(Sketcher.Constraint("Equal", 49, 51))
sketch4.addConstraint(Sketcher.Constraint("Equal", 51, 53))
sketch4.addConstraint(Sketcher.Constraint("Equal", 53, 55))
sketch4.addConstraint(Sketcher.Constraint("Parallel", 2, 4))
sketch4.addConstraint(Sketcher.Constraint("Parallel", 6, 8))
sketch4.addConstraint(Sketcher.Constraint("Parallel", 10, 12))
sketch4.addConstraint(Sketcher.Constraint("Parallel", 14, 16))
sketch4.addConstraint(Sketcher.Constraint("Parallel", 18, 20))
sketch4.addConstraint(Sketcher.Constraint("Parallel", 22, 24))
sketch4.addConstraint(Sketcher.Constraint("Parallel", 26, 28))
sketch4.addConstraint(Sketcher.Constraint("Parallel", 30, 32))
sketch4.addConstraint(Sketcher.Constraint("Parallel", 34, 36))
sketch4.addConstraint(Sketcher.Constraint("Parallel", 38, 40))
sketch4.addConstraint(Sketcher.Constraint("Parallel", 42, 44))
sketch4.addConstraint(Sketcher.Constraint("Parallel", 46, 48))
sketch4.addConstraint(Sketcher.Constraint("Parallel", 50, 52))
sketch4.addConstraint(Sketcher.Constraint("Vertical", 13, 3, 33, 3))
sketch4.addConstraint(Sketcher.Constraint("Vertical", 9, 3, 41, 3))
sketch4.addConstraint(Sketcher.Constraint("Vertical", 11, 3, 43, 3))
sketch4.addConstraint(Sketcher.Constraint("Equal", 22, 24))
sketch4.addConstraint(Sketcher.Constraint("Angle", 0, Q("175 deg")))
sketch4.addConstraint(Sketcher.Constraint("Radius", 1, 2.27))
sketch4.addConstraint(Sketcher.Constraint("DistanceX", -1, 1, 4, 2, 181.627001))
sketch4.addConstraint(Sketcher.Constraint("DistanceX", -1, 1, 47, 3, 255.5641))
sketch4.addConstraint(Sketcher.Constraint("DistanceY", -1, 1, 49, 3, 65.121099))
sketch4.addConstraint(Sketcher.Constraint("DistanceY", -1, 1, 15, 2, 104.2807))
sketch4.addConstraint(Sketcher.Constraint("Distance", 0, 68.263172))
sketch4.addConstraint(Sketcher.Constraint("Distance", 12, 8.194582))
sketch4.addConstraint(Sketcher.Constraint("Distance", 16, 74.12782))
sketch4.addConstraint(Sketcher.Constraint("Distance", 20, 91.169339))
sketch4.addConstraint(Sketcher.Constraint("Distance", 44, 14.853009))
sketch4.addConstraint(Sketcher.Constraint("Distance", 48, 86.141331))
sketch4.addConstraint(Sketcher.Constraint("DistanceX", -1, 1, 1, 3, 190.267612))
sketch4.addConstraint(Sketcher.Constraint("DistanceY", -1, 1, 9, 3, 107.107969))
sketch4.addConstraint(Sketcher.Constraint("DistanceX", -1, 1, 11, 3, 228.767612))
sketch4.addConstraint(Sketcher.Constraint("DistanceX", -1, 1, 13, 3, 254.767612))
sketch4.addConstraint(Sketcher.Constraint("DistanceX", -1, 1, 17, 3, 190.767612))
sketch4.addConstraint(Sketcher.Constraint("DistanceY", -1, 1, 19, 3, 94.313388))
sketch4.addConstraint(Sketcher.Constraint("DistanceY", -1, 1, 21, 3, 94.61644))
sketch4.addConstraint(Sketcher.Constraint("DistanceX", -1, 1, 23, 3, 265.574808))
sketch4.addConstraint(Sketcher.Constraint("DistanceX", -1, 1, 29, 3, 168.080068))
sketch4.addConstraint(Sketcher.Constraint("DistanceX", -1, 1, 31, 3, 242.767612))
sketch4.addConstraint(Sketcher.Constraint("DistanceY", -1, 1, 31, 3, 73.558391))
sketch4.addConstraint(Sketcher.Constraint("DistanceX", -1, 1, 35, 3, 258.902481))
sketch4.addConstraint(Sketcher.Constraint("DistanceY", -1, 1, 37, 3, 72.826012))
sketch4.addConstraint(Sketcher.Constraint("DistanceY", -1, 1, 41, 3, 69.324191))
sketch4.addConstraint(Sketcher.Constraint("DistanceY", -1, 1, 43, 3, 67.224469))
sketch4.addConstraint(Sketcher.Constraint("DistanceY", -1, 1, 47, 3, 64.88008))
sketch4.addConstraint(Sketcher.Constraint("DistanceX", -1, 1, 51, 3, 252.22572))
sketch4.addConstraint(Sketcher.Constraint("DistanceX", -1, 1, 53, 3, 176.267612))
sketch4.addConstraint(Sketcher.Constraint("DistanceX", -1, 1, 55, 3, 248.887339))
sketch4.addConstraint(Sketcher.Constraint("DistanceY", -1, 1, 3, 2, 112.247159))
sketch4.addConstraint(Sketcher.Constraint("DistanceX", -1, 1, 6, 2, 192.56984))
sketch4.addConstraint(Sketcher.Constraint("DistanceY", -1, 1, 6, 2, 105.896471))
sketch4.addConstraint(Sketcher.Constraint("DistanceX", -1, 1, 24, 2, 171.611859))
sketch4.addConstraint(Sketcher.Constraint("DistanceY", -1, 1, 24, 2, 89.611109))
sketch4.addConstraint(Sketcher.Constraint("DistanceY", -1, 1, 32, 2, 74.769889))
sketch4.addConstraint(Sketcher.Constraint("DistanceX", -1, 1, 36, 2, 164.939531))
sketch4.addConstraint(Sketcher.Constraint("DistanceX", -1, 1, 39, 2, 178.96553))
sketch4.addConstraint(Sketcher.Constraint("DistanceY", -1, 1, 52, 2, 58.961459))
pocket3 = doc.addObject("PartDesign::Pocket", "Pocket002")
body.addObject(pocket3)
pocket3.Profile = sketch4
pocket3.Length = 10

doc.recompute()
